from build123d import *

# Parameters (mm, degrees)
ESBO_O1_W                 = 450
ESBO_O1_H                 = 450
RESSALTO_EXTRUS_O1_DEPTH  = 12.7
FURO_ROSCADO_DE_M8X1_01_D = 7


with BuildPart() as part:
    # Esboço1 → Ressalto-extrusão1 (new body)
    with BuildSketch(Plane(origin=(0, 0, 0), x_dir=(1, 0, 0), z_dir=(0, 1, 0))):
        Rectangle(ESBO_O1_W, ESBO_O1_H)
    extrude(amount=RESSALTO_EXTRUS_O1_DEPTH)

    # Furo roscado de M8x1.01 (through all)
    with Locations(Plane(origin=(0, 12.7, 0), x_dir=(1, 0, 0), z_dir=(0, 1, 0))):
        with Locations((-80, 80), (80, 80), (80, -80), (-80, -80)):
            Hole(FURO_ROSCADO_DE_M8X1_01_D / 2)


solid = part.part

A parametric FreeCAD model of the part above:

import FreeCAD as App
import Part
import Sketcher
from FreeCAD import Vector

doc = App.newDocument("Part")
body = doc.addObject("PartDesign::Body", "Body")

sketch1 = body.newObject("Sketcher::SketchObject", "Sketch")
sketch1.AttachmentSupport = (doc.getObject("XZ_Plane"), [""])
sketch1.MapMode = "FlatFace"
sketch1.addGeometry(Part.LineSegment(Vector(-225, -225, 0), Vector(-225, 225, 0)), False)
sketch1.addGeometry(Part.LineSegment(Vector(-225, 225, 0), Vector(225, 225, 0)), False)
sketch1.addGeometry(Part.LineSegment(Vector(225, 225, 0), Vector(225, -225, 0)), False)
sketch1.addGeometry(Part.LineSegment(Vector(225, -225, 0), Vector(-225, -225, 0)), False)
sketch1.addConstraint(Sketcher.Constraint("Coincident", 0, 2, 1, 1))
sketch1.addConstraint(Sketcher.Constraint("Coincident", 1, 2, 2, 1))
sketch1.addConstraint(Sketcher.Constraint("Coincident", 2, 2, 3, 1))
sketch1.addConstraint(Sketcher.Constraint("Coincident", 3, 2, 0, 1))
sketch1.addConstraint(Sketcher.Constraint("Vertical", 0))
sketch1.addConstraint(Sketcher.Constraint("Horizontal", 1))
sketch1.addConstraint(Sketcher.Constraint("Vertical", 2))
sketch1.addConstraint(Sketcher.Constraint("Horizontal", 3))
sketch1.addConstraint(Sketcher.Constraint("Symmetric", 0, 2, 2, 2, -1, 1))
sketch1.addConstraint(Sketcher.Constraint("Equal", 3, 0))
sketch1.addConstraint(Sketcher.Constraint("DistanceX", 1, 1, 1, 2, 450.0))
pad1 = body.newObject("PartDesign::Pad", "Pad")
pad1.Profile = sketch1
pad1.Length = 12.7
pad1.Reversed = True

sketch2 = body.newObject("Sketcher::SketchObject", "Sketch001")
sketch2.AttachmentSupport = (doc.getObject("XZ_Plane"), [""])
sketch2.MapMode = "FlatFace"
sketch2.AttachmentOffset = App.Placement(Vector(0, 0, -12.7), App.Rotation())
sketch2.addGeometry(Part.Circle(Vector(-80, -80, 0), Vector(0, 0, 1), 3.5), False)
sketch2.addGeometry(Part.Circle(Vector(80, -80, 0), Vector(0, 0, 1), 3.5), False)
sketch2.addGeometry(Part.Circle(Vector(80, 80, 0), Vector(0, 0, 1), 3.5), False)
sketch2.addGeometry(Part.Circle(Vector(-80, 80, 0), Vector(0, 0, 1), 3.5), False)
sketch2.addConstraint(Sketcher.Constraint("Equal", 0, 1))
sketch2.addConstraint(Sketcher.Constraint("Equal", 1, 2))
sketch2.addConstraint(Sketcher.Constraint("Equal", 2, 3))
sketch2.addConstraint(Sketcher.Constraint("Symmetric", 0, 3, 2, 3, -1, 1))
sketch2.addConstraint(Sketcher.Constraint("Symmetric", 1, 3, 3, 3, -1, 1))
sketch2.addConstraint(Sketcher.Constraint("Symmetric", 0, 3, 1, 3, -2))
sketch2.addConstraint(Sketcher.Constraint("Diameter", 0, 7.0))
sketch2.addConstraint(Sketcher.Constraint("DistanceX", 0, 3, -1, 1, 80.0))
sketch2.addConstraint(Sketcher.Constraint("DistanceY", 0, 3, -1, 1, 80.0))
doc.recompute()
hole = body.newObject("PartDesign::Hole", "Hole")
hole.Profile = sketch2
hole.ThreadType = "None"
hole.Diameter = 7
hole.DepthType = "ThroughAll"
hole.Reversed = True

doc.recompute()
